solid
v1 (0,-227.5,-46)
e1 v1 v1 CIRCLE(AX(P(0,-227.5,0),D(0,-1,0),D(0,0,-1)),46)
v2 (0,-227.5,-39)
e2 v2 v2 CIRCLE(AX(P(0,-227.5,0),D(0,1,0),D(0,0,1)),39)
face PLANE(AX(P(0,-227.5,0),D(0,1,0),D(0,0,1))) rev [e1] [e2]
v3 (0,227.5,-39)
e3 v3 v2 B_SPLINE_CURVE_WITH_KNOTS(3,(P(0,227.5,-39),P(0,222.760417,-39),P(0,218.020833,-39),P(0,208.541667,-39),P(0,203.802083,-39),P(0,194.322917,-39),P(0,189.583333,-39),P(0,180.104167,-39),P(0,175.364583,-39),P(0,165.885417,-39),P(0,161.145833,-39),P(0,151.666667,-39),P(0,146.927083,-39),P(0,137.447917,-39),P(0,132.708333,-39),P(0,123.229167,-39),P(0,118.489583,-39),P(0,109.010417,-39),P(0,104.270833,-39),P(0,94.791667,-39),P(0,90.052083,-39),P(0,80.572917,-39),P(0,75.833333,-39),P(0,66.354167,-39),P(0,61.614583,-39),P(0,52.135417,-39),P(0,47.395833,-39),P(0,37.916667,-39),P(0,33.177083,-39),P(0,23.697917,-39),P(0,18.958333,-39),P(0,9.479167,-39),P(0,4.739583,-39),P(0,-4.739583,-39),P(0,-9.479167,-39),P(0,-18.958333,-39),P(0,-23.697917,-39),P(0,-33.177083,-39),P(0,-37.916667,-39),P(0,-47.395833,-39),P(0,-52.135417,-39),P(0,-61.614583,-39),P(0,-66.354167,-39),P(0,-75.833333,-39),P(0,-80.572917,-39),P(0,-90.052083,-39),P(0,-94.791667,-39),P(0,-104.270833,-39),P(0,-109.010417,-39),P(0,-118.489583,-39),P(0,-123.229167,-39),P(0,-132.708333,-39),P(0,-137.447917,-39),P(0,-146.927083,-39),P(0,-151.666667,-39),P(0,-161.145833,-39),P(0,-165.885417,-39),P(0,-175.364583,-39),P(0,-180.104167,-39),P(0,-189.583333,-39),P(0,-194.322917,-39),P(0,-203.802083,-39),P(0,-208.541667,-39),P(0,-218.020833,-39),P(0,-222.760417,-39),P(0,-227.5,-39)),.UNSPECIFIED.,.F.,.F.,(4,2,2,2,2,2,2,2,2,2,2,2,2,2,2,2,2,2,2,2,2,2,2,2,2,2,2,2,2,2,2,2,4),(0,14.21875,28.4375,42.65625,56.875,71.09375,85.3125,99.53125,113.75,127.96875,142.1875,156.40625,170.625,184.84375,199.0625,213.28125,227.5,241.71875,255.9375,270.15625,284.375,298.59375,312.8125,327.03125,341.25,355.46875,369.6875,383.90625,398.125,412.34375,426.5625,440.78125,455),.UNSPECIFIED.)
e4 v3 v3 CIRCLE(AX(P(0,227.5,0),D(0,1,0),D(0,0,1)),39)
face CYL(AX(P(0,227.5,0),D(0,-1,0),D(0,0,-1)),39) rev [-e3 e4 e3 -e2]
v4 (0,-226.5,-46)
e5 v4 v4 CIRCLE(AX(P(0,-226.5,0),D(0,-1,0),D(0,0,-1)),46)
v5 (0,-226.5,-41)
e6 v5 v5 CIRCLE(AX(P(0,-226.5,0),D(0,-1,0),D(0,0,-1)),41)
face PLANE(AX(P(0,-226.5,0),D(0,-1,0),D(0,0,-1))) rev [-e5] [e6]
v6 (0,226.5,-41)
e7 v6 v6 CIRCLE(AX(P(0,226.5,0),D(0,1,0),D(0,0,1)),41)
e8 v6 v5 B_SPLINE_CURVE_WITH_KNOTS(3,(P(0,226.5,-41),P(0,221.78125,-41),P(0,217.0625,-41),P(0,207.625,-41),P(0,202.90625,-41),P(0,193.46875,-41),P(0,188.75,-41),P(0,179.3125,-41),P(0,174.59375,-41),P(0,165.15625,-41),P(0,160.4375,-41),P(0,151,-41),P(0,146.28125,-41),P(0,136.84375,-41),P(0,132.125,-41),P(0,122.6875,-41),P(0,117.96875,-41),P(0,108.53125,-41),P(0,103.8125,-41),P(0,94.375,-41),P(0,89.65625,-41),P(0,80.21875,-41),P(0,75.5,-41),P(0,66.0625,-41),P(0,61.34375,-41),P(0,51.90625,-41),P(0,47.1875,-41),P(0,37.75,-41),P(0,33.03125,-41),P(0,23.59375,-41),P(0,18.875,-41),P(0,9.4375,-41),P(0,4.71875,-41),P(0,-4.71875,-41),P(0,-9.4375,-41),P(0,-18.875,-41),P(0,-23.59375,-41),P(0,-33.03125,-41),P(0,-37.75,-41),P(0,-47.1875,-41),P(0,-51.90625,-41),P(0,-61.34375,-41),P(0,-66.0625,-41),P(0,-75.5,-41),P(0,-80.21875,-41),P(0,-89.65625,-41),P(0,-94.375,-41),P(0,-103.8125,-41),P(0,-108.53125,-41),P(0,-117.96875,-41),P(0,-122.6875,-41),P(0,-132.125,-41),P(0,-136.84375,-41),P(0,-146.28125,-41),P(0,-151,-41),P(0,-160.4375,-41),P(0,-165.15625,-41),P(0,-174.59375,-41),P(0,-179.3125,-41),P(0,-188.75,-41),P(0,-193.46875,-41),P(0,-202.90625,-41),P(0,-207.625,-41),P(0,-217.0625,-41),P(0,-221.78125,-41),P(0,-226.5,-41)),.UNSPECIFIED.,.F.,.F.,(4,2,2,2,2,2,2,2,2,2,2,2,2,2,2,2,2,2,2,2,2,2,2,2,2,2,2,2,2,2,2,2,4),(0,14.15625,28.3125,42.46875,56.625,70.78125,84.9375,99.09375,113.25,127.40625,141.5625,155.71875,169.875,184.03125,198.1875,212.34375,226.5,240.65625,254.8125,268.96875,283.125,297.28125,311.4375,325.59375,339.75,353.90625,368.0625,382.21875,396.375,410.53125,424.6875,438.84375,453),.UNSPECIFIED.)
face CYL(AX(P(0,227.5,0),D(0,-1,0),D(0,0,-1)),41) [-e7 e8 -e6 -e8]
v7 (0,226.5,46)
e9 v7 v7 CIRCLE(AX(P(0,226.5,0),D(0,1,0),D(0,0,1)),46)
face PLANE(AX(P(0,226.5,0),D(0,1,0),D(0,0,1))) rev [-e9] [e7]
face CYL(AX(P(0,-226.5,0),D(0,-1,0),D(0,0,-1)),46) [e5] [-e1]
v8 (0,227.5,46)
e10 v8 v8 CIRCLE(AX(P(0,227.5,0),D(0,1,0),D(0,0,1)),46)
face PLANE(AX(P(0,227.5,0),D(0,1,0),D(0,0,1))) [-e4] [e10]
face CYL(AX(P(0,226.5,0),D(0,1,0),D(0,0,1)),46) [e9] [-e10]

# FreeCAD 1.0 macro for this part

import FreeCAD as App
import Part
import Sketcher

V = App.Vector
Q = App.Units.Quantity

doc = App.newDocument("Part")
body = doc.addObject("PartDesign::Body", "Body")

sketch1 = body.newObject("Sketcher::SketchObject", "Sketch")
sketch1.AttachmentSupport = (doc.getObject("XZ_Plane"), [""])
sketch1.MapMode = "FlatFace"
sketch1.addGeometry([
    Part.Circle(V(0, 0, 0), V(0, 0, 1), 41),
    Part.Circle(V(0, 0, 0), V(0, 0, 1), 39),
], False)
sketch1.addConstraint([
    Sketcher.Constraint("Coincident", 0, 3, -1, 1),
    Sketcher.Constraint("Coincident", 1, 3, -1, 1),
    Sketcher.Constraint("Diameter", 0, Q("82 mm")),
    Sketcher.Constraint("Diameter", 1, Q("78 mm")),
])
pad1 = body.newObject("PartDesign::Pad", "Pad")
pad1.Profile = sketch1
pad1.Length = 455
pad1.Midplane = True

sketch2 = body.newObject("Sketcher::SketchObject", "Sketch001")
sketch2.AttachmentSupport = (doc.getObject("XZ_Plane"), [""])
sketch2.MapMode = "FlatFace"
sketch2.AttachmentOffset = App.Placement(V(0, 0, -227.5), App.Rotation())
sketch2.addGeometry([
    Part.Circle(V(0, 0, 0), V(0, 0, 1), 46),
    Part.Circle(V(0, 0, 0), V(0, 0, 1), 41),
], False)
sketch2.addConstraint([
    Sketcher.Constraint("Coincident", 0, 3, -1, 1),
    Sketcher.Constraint("Coincident", 1, 3, -1, 1),
    Sketcher.Constraint("Diameter", 0, Q("92 mm")),
    Sketcher.Constraint("Diameter", 1, Q("82 mm")),
])
pad2 = body.newObject("PartDesign::Pad", "Pad001")
pad2.Profile = sketch2
pad2.Length = 1

sketch3 = body.newObject("Sketcher::SketchObject", "Sketch002")
sketch3.AttachmentSupport = (doc.getObject("XZ_Plane"), [""])
sketch3.MapMode = "FlatFace"
sketch3.AttachmentOffset = App.Placement(V(0, 0, 226.5), App.Rotation())
sketch3.addGeometry([
    Part.Circle(V(0, 0, 0), V(0, 0, 1), 46),
    Part.Circle(V(0, 0, 0), V(0, 0, 1), 41),
], False)
sketch3.addConstraint([
    Sketcher.Constraint("Coincident", 0, 3, -1, 1),
    Sketcher.Constraint("Coincident", 1, 3, -1, 1),
    Sketcher.Constraint("Diameter", 0, Q("92 mm")),
    Sketcher.Constraint("Diameter", 1, Q("82 mm")),
])
pad3 = body.newObject("PartDesign::Pad", "Pad002")
pad3.Profile = sketch3
pad3.Length = 1

doc.recompute()
